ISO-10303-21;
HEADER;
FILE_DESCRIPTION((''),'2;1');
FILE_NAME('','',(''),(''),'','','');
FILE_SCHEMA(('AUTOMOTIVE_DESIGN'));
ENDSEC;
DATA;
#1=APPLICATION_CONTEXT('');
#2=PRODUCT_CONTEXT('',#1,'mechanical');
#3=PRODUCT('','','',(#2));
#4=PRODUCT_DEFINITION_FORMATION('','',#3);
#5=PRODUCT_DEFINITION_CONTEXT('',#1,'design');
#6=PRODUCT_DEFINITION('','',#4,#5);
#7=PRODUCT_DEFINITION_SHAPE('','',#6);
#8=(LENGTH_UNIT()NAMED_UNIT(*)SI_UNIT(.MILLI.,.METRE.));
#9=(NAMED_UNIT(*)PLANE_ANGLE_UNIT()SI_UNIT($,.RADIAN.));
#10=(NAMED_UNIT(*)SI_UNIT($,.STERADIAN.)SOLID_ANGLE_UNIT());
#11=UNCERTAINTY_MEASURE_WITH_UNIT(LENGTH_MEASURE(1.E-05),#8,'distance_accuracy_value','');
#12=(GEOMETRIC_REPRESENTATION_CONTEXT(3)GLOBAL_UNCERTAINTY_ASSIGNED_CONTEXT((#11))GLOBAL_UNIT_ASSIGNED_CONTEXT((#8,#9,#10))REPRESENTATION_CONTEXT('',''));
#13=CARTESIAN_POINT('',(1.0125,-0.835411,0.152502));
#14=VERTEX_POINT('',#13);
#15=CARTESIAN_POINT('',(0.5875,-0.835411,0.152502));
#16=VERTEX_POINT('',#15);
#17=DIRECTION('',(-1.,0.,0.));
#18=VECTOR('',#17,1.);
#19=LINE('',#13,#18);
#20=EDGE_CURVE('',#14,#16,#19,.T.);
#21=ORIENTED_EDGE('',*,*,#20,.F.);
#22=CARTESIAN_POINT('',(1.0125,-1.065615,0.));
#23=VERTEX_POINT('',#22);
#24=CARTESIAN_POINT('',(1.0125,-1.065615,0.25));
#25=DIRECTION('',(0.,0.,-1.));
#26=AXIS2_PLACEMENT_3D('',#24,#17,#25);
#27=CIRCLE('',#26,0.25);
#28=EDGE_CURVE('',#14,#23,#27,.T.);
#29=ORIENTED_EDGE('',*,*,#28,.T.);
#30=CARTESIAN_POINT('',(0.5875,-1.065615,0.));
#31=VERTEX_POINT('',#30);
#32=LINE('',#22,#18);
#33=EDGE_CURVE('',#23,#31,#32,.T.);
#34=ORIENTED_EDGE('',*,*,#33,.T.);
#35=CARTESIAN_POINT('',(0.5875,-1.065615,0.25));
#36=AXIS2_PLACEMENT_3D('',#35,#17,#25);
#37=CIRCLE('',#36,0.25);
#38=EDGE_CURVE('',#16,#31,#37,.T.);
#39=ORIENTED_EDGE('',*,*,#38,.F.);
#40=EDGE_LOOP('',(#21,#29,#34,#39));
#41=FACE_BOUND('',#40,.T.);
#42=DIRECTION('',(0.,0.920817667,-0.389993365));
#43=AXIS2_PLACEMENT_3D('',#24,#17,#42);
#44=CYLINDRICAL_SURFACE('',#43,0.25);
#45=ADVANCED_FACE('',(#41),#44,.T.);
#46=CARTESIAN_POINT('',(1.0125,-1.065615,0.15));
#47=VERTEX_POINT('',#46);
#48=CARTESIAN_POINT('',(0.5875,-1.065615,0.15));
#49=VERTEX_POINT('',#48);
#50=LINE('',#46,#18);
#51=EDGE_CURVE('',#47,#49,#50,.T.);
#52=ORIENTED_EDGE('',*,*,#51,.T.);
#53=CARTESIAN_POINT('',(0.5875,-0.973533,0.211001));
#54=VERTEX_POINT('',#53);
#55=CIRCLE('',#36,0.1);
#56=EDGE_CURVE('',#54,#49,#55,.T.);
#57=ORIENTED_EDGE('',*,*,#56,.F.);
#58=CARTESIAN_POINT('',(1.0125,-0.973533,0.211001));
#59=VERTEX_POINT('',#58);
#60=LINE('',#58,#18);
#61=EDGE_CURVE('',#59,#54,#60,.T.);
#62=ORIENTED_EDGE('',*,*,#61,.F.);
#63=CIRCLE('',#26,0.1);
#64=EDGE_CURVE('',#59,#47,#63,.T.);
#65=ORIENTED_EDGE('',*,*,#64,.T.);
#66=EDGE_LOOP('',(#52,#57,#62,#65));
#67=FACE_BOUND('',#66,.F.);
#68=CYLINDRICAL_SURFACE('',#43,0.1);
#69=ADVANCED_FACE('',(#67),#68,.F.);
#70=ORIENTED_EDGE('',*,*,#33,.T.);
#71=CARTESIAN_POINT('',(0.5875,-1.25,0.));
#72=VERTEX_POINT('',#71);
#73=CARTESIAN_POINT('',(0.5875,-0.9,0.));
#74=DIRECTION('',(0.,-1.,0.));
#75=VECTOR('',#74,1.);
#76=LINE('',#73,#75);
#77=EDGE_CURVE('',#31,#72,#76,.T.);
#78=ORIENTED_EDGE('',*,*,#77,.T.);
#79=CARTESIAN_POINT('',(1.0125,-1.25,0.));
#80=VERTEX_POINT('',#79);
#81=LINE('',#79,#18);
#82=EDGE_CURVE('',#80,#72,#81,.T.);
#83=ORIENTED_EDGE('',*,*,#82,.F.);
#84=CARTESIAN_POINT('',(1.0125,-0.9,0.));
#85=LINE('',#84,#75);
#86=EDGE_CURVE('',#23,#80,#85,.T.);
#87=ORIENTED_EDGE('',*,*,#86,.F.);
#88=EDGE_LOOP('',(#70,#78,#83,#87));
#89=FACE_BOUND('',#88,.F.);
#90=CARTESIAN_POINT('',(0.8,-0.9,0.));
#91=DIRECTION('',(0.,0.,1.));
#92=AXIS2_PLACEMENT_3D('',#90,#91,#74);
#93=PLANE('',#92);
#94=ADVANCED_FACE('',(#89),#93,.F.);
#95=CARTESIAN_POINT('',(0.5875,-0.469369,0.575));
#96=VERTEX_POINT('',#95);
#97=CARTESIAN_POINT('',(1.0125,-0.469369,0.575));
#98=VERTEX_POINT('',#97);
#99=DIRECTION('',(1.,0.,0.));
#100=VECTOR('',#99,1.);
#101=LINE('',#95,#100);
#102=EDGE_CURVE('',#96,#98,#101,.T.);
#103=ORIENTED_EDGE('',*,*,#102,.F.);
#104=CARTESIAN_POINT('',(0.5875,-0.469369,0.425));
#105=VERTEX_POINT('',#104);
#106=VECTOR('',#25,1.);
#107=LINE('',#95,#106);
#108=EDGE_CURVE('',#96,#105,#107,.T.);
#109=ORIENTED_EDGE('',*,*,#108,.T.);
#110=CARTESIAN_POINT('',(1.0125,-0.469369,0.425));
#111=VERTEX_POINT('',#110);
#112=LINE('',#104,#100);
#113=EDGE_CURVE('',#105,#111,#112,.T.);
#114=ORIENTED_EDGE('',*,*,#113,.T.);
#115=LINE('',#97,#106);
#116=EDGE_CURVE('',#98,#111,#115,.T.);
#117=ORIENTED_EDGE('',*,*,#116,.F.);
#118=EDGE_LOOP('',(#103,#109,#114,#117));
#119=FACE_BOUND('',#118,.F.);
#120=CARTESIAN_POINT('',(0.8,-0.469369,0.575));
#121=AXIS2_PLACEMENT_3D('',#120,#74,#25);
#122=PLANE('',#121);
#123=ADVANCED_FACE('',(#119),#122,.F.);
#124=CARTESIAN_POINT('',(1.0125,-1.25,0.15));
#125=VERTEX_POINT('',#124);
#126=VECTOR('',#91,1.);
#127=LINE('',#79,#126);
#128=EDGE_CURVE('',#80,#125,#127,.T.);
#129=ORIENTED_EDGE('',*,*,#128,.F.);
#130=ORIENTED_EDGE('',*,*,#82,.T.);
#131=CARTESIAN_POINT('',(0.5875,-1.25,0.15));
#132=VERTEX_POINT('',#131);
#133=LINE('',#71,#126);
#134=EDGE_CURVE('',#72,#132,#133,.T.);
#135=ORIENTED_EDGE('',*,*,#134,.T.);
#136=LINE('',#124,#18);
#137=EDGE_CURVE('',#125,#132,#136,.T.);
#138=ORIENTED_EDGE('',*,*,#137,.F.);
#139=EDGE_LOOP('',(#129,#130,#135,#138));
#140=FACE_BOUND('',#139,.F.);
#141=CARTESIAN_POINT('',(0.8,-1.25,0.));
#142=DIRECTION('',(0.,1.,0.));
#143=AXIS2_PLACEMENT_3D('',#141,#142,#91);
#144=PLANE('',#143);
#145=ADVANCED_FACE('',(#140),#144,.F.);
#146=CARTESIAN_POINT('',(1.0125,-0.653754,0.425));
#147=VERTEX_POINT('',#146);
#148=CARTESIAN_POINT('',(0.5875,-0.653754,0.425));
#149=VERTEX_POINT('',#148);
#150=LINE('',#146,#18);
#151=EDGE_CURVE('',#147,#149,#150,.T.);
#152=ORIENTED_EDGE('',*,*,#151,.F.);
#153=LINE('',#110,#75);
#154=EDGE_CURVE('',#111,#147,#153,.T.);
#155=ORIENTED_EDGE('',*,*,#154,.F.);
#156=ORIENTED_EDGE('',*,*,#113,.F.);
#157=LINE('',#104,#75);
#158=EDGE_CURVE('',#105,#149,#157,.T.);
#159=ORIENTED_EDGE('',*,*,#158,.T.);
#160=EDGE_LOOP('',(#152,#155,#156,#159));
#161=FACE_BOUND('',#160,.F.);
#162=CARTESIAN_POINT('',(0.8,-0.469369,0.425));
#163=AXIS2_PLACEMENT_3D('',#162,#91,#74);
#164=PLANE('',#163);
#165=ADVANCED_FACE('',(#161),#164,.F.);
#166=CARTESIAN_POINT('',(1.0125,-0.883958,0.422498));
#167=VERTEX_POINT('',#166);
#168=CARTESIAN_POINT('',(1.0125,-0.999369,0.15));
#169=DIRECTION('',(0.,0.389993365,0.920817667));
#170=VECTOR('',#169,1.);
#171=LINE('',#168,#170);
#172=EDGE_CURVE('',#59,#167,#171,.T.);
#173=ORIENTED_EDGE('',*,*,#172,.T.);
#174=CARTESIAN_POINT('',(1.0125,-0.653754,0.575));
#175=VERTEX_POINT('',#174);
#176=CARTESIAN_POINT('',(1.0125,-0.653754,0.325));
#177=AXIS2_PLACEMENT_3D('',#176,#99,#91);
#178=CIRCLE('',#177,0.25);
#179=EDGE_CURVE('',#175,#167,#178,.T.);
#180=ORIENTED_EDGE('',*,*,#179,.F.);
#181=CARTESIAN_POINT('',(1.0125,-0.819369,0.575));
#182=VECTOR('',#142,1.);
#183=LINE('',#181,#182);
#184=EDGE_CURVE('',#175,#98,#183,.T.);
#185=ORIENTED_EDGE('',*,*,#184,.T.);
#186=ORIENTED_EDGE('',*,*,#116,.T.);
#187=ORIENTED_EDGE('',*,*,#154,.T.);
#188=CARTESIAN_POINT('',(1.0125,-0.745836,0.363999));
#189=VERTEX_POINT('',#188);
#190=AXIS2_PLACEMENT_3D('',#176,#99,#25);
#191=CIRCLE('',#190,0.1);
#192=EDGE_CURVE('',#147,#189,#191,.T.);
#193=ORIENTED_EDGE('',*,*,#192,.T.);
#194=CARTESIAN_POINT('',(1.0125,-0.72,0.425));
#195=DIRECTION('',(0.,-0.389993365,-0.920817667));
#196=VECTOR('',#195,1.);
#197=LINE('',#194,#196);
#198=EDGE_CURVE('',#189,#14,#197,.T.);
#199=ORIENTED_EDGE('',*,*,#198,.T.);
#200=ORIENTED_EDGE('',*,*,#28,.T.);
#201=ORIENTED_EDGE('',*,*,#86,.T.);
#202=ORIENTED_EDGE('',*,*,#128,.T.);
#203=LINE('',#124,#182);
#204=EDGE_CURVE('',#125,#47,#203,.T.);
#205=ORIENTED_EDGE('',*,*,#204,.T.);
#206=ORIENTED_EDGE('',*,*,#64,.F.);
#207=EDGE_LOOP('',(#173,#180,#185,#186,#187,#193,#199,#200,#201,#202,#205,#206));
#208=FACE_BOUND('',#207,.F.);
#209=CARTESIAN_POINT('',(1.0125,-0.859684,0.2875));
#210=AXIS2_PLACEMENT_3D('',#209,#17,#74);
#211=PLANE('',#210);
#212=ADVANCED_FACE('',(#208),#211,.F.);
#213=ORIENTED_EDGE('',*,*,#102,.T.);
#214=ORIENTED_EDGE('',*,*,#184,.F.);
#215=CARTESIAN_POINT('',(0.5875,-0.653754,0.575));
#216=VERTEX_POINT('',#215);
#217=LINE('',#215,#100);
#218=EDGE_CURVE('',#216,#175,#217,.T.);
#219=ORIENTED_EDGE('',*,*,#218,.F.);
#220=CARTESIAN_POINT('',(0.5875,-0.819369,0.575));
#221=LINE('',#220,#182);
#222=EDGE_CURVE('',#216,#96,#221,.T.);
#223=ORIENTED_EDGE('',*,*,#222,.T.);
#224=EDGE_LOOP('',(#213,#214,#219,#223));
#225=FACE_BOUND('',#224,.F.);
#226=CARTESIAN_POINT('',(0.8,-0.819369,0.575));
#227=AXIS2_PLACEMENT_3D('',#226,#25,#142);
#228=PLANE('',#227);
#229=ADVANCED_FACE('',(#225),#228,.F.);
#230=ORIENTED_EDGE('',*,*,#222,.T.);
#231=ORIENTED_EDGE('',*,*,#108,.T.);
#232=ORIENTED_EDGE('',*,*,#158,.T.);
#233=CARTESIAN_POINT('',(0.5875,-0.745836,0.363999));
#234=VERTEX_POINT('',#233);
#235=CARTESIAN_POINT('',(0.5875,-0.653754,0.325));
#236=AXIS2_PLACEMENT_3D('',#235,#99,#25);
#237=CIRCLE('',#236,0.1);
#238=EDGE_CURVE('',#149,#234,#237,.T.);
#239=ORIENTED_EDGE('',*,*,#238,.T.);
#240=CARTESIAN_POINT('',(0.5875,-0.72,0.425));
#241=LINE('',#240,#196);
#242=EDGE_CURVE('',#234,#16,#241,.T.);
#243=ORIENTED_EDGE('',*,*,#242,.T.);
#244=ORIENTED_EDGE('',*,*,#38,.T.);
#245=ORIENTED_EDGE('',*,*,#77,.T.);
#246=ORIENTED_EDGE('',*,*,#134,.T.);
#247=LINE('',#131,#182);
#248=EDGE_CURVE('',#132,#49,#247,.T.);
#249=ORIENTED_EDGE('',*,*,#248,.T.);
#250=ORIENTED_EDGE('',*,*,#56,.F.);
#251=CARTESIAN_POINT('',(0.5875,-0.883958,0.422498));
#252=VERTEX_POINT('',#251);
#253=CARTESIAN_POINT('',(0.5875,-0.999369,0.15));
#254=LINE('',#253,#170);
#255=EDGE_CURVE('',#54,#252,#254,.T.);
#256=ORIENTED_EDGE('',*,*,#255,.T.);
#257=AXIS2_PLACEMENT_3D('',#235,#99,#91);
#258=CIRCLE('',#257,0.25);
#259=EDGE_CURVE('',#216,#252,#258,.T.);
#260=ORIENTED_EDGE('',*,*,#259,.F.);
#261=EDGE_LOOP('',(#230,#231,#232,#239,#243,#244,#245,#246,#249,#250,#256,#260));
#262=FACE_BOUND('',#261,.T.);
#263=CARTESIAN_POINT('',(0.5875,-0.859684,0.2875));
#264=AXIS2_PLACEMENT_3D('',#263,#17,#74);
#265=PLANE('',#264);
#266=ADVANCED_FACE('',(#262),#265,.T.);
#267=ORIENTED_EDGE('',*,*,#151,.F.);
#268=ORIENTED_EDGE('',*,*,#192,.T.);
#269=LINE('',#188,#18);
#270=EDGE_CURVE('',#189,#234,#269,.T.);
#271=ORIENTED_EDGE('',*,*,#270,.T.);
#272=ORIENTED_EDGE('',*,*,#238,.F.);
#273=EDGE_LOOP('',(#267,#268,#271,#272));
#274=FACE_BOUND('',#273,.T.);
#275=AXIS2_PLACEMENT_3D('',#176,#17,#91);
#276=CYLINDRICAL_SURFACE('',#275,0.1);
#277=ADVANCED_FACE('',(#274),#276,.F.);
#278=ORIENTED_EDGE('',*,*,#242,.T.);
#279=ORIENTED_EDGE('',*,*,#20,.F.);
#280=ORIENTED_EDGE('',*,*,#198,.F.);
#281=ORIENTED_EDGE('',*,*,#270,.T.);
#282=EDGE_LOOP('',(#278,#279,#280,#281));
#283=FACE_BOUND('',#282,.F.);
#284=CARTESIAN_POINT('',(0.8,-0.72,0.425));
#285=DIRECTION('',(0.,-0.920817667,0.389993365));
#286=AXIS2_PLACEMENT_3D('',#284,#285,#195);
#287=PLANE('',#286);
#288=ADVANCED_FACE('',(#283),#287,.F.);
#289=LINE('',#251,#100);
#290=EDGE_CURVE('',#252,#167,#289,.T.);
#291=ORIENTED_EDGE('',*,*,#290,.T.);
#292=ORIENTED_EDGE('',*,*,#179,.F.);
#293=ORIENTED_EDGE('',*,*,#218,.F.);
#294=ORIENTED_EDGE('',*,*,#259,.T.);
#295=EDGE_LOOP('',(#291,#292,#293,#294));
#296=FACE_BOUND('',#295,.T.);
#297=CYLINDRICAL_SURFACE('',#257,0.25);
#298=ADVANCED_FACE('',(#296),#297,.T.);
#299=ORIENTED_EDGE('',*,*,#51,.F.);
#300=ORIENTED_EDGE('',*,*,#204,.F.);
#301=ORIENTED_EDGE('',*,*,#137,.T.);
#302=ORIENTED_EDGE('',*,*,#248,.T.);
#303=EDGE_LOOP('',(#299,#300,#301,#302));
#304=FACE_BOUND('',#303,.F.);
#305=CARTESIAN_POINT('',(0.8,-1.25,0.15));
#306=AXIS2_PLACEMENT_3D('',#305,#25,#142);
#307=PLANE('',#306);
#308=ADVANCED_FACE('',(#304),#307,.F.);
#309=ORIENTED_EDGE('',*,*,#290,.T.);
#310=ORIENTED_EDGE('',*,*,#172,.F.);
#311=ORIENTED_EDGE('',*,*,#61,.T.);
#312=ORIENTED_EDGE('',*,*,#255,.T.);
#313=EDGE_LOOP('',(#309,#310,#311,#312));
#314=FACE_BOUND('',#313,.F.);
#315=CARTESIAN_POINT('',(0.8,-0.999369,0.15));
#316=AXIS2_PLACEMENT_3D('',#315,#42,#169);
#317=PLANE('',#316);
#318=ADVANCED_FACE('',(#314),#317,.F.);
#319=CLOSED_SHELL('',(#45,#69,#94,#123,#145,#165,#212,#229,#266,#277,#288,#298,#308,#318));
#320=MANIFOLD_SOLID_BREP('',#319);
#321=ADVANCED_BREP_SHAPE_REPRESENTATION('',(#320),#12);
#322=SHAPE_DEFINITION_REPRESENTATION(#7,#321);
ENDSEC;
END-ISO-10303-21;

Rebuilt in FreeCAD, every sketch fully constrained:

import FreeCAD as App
import Part
import Sketcher
from FreeCAD import Vector


def edges_at(feature, points):
    """Names of the edges that pass closest to the given points."""
    edges = feature.Shape.Edges
    near = lambda p: min(range(len(edges)), key=lambda i: edges[i].distToShape(Part.Vertex(*p))[0])
    return sorted({f"Edge{near(p) + 1}" for p in points})

doc = App.newDocument("Part")
body = doc.addObject("PartDesign::Body", "Body")

sketch1 = doc.addObject("Sketcher::SketchObject", "Sketch")
body.addObject(sketch1)
sketch1.AttachmentSupport = (doc.YZ_Plane, [""])
sketch1.MapMode = "FlatFace"
sketch1.addGeometry([
    Part.LineSegment(Vector(-0.72, 0.42, 0), Vector(-0.47, 0.42, 0)),
    Part.LineSegment(Vector(-0.47, 0.42, 0), Vector(-0.47, 0.57, 0)),
    Part.LineSegment(Vector(-0.47, 0.57, 0), Vector(-0.82, 0.57, 0)),
    Part.LineSegment(Vector(-0.82, 0.57, 0), Vector(-1, 0.15, 0)),
    Part.LineSegment(Vector(-1, 0.15, 0), Vector(-1.25, 0.15, 0)),
    Part.LineSegment(Vector(-1.25, 0.15, 0), Vector(-1.25, 0, 0)),
    Part.LineSegment(Vector(-1.25, 0, 0), Vector(-0.9, 0, 0)),
    Part.LineSegment(Vector(-0.9, 0, 0), Vector(-0.72, 0.42, 0)),
], False)
sketch1.addConstraint([
    Sketcher.Constraint("Coincident", 0, 2, 1, 1),
    Sketcher.Constraint("Coincident", 1, 2, 2, 1),
    Sketcher.Constraint("Coincident", 2, 2, 3, 1),
    Sketcher.Constraint("Coincident", 3, 2, 4, 1),
    Sketcher.Constraint("Coincident", 4, 2, 5, 1),
    Sketcher.Constraint("Coincident", 5, 2, 6, 1),
    Sketcher.Constraint("Coincident", 6, 2, 7, 1),
    Sketcher.Constraint("Coincident", 7, 2, 0, 1),
    Sketcher.Constraint("Horizontal", 0),
    Sketcher.Constraint("Vertical", 1),
    Sketcher.Constraint("Horizontal", 2),
    Sketcher.Constraint("Horizontal", 4),
    Sketcher.Constraint("Vertical", 5),
    Sketcher.Constraint("Horizontal", 6),
    Sketcher.Constraint("PointOnObject", 5, 2, -1),
    Sketcher.Constraint("Parallel", 3, 7),
    Sketcher.Constraint("Equal", 0, 4),
    Sketcher.Constraint("Equal", 2, 6),
    Sketcher.Constraint("DistanceX", 2, 2, 2, 1, 0.35),
    Sketcher.Constraint("DistanceY", 1, 1, 1, 2, 0.15),
    Sketcher.Constraint("DistanceX", 6, 2, -1, 1, 0.9),
    Sketcher.Constraint("DistanceX", 7, 2, -1, 1, 0.72),
    Sketcher.Constraint("DistanceY", -1, 1, 0, 2, 0.425),
    Sketcher.Constraint("DistanceX", 0, 1, 0, 2, 0.250631),
])
pad1 = doc.addObject("PartDesign::Pad", "Pad")
body.addObject(pad1)
pad1.Profile = sketch1
pad1.Length = 0.425
pad1.Midplane = True
doc.recompute()

fillet = doc.addObject("PartDesign::Fillet", "Fillet")
body.addObject(fillet)
fillet.Base = (pad1, edges_at(pad1, [(0, -0.999, 0.15), (0, -0.72, 0.425)]))
fillet.Radius = 0.1
doc.recompute()

fillet2 = doc.addObject("PartDesign::Fillet", "Fillet001")
body.addObject(fillet2)
fillet2.Base = (fillet, edges_at(fillet, [(0, -0.9, 0), (0, -0.819, 0.575)]))
fillet2.Radius = 0.25
body2 = doc.addObject("PartDesign::Body", "Body001")
doc.recompute()

body.Placement = App.Placement(Vector(0.8, 0, 0), App.Rotation(Vector(0, 0, 1), 0))
boolean = doc.addObject("PartDesign::Boolean", "Boolean")
body2.addObject(boolean)
boolean.Type = "Fuse"
boolean.addObjects([body])

doc.recompute()
